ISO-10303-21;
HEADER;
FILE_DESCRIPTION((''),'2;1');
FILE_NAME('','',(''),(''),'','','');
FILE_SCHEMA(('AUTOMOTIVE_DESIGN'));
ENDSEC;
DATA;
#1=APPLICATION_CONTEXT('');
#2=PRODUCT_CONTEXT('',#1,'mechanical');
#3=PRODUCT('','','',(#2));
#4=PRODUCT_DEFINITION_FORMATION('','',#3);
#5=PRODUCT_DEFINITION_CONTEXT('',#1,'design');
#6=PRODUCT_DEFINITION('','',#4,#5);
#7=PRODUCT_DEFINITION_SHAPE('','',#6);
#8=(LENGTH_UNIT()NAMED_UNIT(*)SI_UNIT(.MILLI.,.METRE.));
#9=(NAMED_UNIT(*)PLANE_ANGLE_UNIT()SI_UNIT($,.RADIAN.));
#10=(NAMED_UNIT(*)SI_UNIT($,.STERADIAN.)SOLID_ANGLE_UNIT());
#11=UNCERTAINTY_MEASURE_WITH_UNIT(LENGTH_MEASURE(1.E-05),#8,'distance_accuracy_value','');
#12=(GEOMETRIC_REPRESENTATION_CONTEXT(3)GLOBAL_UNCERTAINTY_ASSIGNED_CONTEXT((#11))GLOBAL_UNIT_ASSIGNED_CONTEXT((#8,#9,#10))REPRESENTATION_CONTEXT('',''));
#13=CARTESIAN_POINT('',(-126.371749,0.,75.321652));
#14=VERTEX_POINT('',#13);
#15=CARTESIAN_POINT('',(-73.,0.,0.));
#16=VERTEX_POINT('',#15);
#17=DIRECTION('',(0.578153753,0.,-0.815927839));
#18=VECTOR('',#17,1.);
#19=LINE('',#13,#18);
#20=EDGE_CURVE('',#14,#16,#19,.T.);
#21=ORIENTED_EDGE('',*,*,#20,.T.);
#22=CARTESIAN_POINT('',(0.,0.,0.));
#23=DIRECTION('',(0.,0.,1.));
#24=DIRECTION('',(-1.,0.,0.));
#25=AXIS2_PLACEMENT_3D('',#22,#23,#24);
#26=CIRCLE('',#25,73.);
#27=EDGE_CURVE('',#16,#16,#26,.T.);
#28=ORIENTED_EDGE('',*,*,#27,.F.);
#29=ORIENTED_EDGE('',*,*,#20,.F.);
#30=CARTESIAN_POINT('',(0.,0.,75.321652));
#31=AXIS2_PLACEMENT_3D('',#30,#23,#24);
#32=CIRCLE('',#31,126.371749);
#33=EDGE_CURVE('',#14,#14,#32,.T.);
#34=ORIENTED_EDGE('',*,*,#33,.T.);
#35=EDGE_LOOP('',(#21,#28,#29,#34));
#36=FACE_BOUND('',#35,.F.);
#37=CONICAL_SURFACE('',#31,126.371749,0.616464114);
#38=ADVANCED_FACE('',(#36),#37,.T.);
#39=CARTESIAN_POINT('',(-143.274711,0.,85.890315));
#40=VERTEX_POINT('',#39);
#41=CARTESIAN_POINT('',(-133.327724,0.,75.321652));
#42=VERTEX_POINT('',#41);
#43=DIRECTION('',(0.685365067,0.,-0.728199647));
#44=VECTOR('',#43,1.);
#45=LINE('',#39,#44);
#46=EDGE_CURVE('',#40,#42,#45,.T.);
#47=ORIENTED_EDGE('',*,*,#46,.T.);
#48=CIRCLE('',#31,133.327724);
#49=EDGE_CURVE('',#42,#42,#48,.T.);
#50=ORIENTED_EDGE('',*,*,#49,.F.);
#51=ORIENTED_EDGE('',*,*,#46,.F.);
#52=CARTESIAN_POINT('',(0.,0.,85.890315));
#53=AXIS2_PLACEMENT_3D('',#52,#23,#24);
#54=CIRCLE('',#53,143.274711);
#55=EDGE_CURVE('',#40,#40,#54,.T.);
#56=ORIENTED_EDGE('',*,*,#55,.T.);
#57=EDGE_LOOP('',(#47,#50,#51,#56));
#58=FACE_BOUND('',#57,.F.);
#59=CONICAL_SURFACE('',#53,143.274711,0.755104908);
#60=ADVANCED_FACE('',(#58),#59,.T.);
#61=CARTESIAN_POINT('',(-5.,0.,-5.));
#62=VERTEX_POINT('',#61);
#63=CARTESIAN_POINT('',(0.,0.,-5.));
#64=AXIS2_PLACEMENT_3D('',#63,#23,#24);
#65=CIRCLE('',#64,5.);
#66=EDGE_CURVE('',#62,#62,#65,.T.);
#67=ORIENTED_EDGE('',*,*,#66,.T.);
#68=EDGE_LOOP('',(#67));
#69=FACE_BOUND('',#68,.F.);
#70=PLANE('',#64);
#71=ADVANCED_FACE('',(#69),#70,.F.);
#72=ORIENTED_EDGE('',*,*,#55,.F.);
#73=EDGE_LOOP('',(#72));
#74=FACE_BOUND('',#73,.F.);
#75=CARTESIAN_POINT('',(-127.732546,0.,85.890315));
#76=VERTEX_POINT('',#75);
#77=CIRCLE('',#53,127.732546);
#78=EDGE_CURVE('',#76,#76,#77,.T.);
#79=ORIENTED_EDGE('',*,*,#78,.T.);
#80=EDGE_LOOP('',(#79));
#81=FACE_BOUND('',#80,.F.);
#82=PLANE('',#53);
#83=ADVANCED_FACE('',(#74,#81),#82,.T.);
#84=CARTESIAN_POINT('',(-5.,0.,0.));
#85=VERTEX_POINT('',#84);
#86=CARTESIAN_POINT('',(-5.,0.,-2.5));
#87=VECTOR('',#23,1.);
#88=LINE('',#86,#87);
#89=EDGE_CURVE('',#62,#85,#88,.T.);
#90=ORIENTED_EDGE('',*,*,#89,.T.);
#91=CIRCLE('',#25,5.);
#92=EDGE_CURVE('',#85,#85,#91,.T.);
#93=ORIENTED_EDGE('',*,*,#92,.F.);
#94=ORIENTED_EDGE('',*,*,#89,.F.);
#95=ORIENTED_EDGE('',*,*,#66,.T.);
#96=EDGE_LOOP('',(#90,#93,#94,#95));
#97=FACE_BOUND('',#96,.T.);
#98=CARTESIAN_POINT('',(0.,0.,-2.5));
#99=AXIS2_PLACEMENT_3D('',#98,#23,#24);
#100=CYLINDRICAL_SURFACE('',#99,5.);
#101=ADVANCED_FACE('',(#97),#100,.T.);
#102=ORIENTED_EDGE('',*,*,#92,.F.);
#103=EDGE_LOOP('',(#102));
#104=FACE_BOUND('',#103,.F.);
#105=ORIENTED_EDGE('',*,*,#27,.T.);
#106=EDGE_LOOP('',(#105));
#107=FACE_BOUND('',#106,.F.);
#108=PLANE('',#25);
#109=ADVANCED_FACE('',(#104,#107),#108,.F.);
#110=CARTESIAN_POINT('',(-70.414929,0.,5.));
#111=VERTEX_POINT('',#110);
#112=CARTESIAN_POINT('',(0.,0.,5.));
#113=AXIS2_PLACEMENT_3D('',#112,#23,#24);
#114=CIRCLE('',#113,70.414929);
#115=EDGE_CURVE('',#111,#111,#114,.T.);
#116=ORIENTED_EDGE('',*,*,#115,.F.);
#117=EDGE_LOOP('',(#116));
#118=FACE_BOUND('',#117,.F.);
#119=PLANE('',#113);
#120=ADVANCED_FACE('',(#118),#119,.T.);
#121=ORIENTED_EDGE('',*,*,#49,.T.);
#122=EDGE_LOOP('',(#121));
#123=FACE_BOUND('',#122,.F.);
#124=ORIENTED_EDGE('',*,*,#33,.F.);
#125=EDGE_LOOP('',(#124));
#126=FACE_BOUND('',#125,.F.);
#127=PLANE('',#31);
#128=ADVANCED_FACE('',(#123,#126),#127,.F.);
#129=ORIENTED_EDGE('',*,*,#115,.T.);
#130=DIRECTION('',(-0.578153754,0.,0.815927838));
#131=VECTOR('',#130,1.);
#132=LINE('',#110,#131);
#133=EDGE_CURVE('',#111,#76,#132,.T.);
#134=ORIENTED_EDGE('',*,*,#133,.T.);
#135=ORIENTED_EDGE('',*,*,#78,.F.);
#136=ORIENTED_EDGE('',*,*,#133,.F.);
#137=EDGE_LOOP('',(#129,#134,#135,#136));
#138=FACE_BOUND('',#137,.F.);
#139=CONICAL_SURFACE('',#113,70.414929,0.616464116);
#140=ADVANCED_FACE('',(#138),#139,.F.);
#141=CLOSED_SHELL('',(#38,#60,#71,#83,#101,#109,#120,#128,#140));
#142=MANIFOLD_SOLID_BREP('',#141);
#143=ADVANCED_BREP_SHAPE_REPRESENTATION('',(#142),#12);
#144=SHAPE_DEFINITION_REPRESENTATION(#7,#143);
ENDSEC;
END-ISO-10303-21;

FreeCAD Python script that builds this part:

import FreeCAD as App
import Part
import Sketcher

V = App.Vector
Q = App.Units.Quantity

doc = App.newDocument("Part")
body = doc.addObject("PartDesign::Body", "Body")

# Sketch on XZ plane
sketch1 = body.newObject("Sketcher::SketchObject", "Sketch")
sketch1.AttachmentSupport = (doc.getObject("XZ_Plane"), [""])
sketch1.MapMode = "FlatFace"
sketch1.addGeometry([
    Part.LineSegment(V(0, 5, 0), V(-70, 5, 0)),  # 0
    Part.LineSegment(V(-70, 5, 0), V(-128, 86, 0)),  # 1
    Part.LineSegment(V(-128, 86, 0), V(-143, 86, 0)),  # 2
    Part.LineSegment(V(-143, 86, 0), V(-133, 75, 0)),  # 3
    Part.LineSegment(V(-133, 75, 0), V(-126, 75, 0)),  # 4
    Part.LineSegment(V(-126, 75, 0), V(-73, 0, 0)),  # 5
    Part.LineSegment(V(-73, 0, 0), V(-5, 0, 0)),  # 6
    Part.LineSegment(V(-5, 0, 0), V(-5, -5, 0)),  # 7
    Part.LineSegment(V(-5, -5, 0), V(0, -5, 0)),  # 8
    Part.LineSegment(V(0, -5, 0), V(0, 5, 0)),  # 9
], False)
sketch1.addConstraint([
    Sketcher.Constraint("Coincident", 0, 2, 1, 1),
    Sketcher.Constraint("Coincident", 1, 2, 2, 1),
    Sketcher.Constraint("Coincident", 2, 2, 3, 1),
    Sketcher.Constraint("Coincident", 3, 2, 4, 1),
    Sketcher.Constraint("Coincident", 4, 2, 5, 1),
    Sketcher.Constraint("Coincident", 5, 2, 6, 1),
    Sketcher.Constraint("Coincident", 6, 2, 7, 1),
    Sketcher.Constraint("Coincident", 7, 2, 8, 1),
    Sketcher.Constraint("Coincident", 8, 2, 9, 1),
    Sketcher.Constraint("Coincident", 9, 2, 0, 1),
    Sketcher.Constraint("Horizontal", 0),
    Sketcher.Constraint("Horizontal", 2),
    Sketcher.Constraint("Horizontal", 4),
    Sketcher.Constraint("Horizontal", 6),
    Sketcher.Constraint("Vertical", 7),
    Sketcher.Constraint("Horizontal", 8),
    Sketcher.Constraint("Vertical", 9),
    Sketcher.Constraint("Symmetric", 8, 2, 9, 2, -1, 1),
    Sketcher.Constraint("PointOnObject", 5, 2, -1),
    Sketcher.Constraint("Parallel", 1, 5),
    Sketcher.Constraint("Equal", 8, 7),
    Sketcher.Constraint("DistanceX", 6, 1, 6, 2, Q("68 mm")),
    Sketcher.Constraint("DistanceX", 8, 1, 8, 2, Q("5 mm")),
    Sketcher.Constraint("DistanceX", 0, 2, 0, 1, Q("70.414929 mm")),
    Sketcher.Constraint("Distance", 5, Q("92.31411 mm")),
    Sketcher.Constraint("DistanceX", 2, 2, 2, 1, Q("15.542165 mm")),
    Sketcher.Constraint("DistanceX", 4, 1, 4, 2, Q("6.955975 mm")),
    Sketcher.Constraint("DistanceX", 2, 2, -1, 1, Q("143.274711 mm")),
    Sketcher.Constraint("DistanceY", -1, 1, 3, 2, Q("75.321652 mm")),
])
revolution = body.newObject("PartDesign::Revolution", "Revolution")
revolution.Profile = sketch1
revolution.ReferenceAxis = (sketch1, ["V_Axis"])
revolution.Angle = 360

doc.recompute()
